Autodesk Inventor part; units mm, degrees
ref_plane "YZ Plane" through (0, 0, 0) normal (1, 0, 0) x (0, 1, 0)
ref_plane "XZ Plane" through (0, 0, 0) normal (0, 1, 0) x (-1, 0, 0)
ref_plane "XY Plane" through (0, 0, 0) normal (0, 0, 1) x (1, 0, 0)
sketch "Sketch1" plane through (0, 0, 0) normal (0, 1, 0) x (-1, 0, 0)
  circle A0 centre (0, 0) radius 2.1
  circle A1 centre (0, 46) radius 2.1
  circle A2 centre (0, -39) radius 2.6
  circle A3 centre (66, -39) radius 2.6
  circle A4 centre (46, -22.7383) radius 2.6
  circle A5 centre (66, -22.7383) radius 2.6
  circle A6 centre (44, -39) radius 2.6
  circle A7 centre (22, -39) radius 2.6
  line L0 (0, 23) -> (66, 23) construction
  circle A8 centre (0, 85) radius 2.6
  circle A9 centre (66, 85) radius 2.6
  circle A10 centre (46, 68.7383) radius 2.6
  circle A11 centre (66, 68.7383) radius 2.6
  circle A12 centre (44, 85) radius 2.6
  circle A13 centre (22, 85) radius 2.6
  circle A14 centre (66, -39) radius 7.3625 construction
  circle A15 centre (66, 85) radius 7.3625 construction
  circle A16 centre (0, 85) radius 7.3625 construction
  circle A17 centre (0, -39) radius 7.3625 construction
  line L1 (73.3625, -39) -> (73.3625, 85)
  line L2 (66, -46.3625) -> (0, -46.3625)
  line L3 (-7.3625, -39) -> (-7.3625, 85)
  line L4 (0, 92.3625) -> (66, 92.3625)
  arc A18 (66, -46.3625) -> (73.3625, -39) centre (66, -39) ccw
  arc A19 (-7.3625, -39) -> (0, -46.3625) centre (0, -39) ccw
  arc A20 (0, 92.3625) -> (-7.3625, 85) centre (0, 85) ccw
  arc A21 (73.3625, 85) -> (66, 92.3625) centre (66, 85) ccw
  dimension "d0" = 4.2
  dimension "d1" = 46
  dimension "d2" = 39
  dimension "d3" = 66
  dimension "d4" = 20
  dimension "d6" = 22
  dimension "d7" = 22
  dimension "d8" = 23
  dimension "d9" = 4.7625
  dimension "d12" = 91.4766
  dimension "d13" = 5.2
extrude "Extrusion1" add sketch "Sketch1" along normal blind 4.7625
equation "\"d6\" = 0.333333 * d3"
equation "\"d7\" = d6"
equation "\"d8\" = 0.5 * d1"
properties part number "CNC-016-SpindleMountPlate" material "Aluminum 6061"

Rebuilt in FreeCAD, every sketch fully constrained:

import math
import FreeCAD as App
import Part
import Sketcher
from FreeCAD import Vector

doc = App.newDocument("Part")
body = doc.addObject("PartDesign::Body", "Body")

sketch1 = body.newObject("Sketcher::SketchObject", "Sketch")
sketch1.AttachmentSupport = (doc.getObject("XZ_Plane"), [""])
sketch1.MapMode = "FlatFace"
sketch1.addGeometry([
    Part.ArcOfCircle(Part.Circle(Vector(-66, -39, 0), Vector(0, 0, 1), 7.4), math.radians(180), math.radians(270)),
    Part.LineSegment(Vector(-73.4, -39, 0), Vector(-73.4, 85, 0)),
    Part.ArcOfCircle(Part.Circle(Vector(-66, 85, 0), Vector(0, 0, 1), 7.4), math.radians(90), math.radians(180)),
    Part.LineSegment(Vector(-66, 92.4, 0), Vector(0, 92.4, 0)),
    Part.ArcOfCircle(Part.Circle(Vector(0, 85, 0), Vector(0, 0, 1), 7.4), math.radians(0), math.radians(90)),
    Part.LineSegment(Vector(7.4, 85, 0), Vector(7.4, -39, 0)),
    Part.ArcOfCircle(Part.Circle(Vector(0, -39, 0), Vector(0, 0, 1), 7.4), math.radians(-90), math.radians(0)),
    Part.LineSegment(Vector(0, -46.4, 0), Vector(-66, -46.4, 0)),
    Part.Circle(Vector(0, -39, 0), Vector(0, 0, 1), 2.6),
    Part.Circle(Vector(-22, -39, 0), Vector(0, 0, 1), 2.6),
    Part.Circle(Vector(0, 0, 0), Vector(0, 0, 1), 2.1),
    Part.Circle(Vector(-44, -39, 0), Vector(0, 0, 1), 2.6),
    Part.Circle(Vector(-46, -22.7, 0), Vector(0, 0, 1), 2.6),
    Part.Circle(Vector(-66, -39, 0), Vector(0, 0, 1), 2.6),
    Part.Circle(Vector(-66, -22.7, 0), Vector(0, 0, 1), 2.6),
    Part.Circle(Vector(0, 46, 0), Vector(0, 0, 1), 2.1),
    Part.Circle(Vector(0, 85, 0), Vector(0, 0, 1), 2.6),
    Part.Circle(Vector(-22, 85, 0), Vector(0, 0, 1), 2.6),
    Part.Circle(Vector(-46, 68.7, 0), Vector(0, 0, 1), 2.6),
    Part.Circle(Vector(-44, 85, 0), Vector(0, 0, 1), 2.6),
    Part.Circle(Vector(-66, 68.7, 0), Vector(0, 0, 1), 2.6),
    Part.Circle(Vector(-66, 85, 0), Vector(0, 0, 1), 2.6),
], False)
sketch1.addConstraint([
    Sketcher.Constraint("Tangent", 0, 1, 1, 1),
    Sketcher.Constraint("Tangent", 1, 2, 2, 2),
    Sketcher.Constraint("Tangent", 2, 1, 3, 1),
    Sketcher.Constraint("Tangent", 3, 2, 4, 2),
    Sketcher.Constraint("Tangent", 4, 1, 5, 1),
    Sketcher.Constraint("Tangent", 5, 2, 6, 2),
    Sketcher.Constraint("Tangent", 6, 1, 7, 1),
    Sketcher.Constraint("Tangent", 7, 2, 0, 2),
    Sketcher.Constraint("Vertical", 1),
    Sketcher.Constraint("Horizontal", 3),
    Sketcher.Constraint("Vertical", 5),
    Sketcher.Constraint("Horizontal", 7),
    Sketcher.Constraint("Coincident", 10, 3, -1, 1),
    Sketcher.Constraint("Coincident", 8, 3, 6, 3),
    Sketcher.Constraint("Coincident", 13, 3, 0, 3),
    Sketcher.Constraint("Coincident", 16, 3, 4, 3),
    Sketcher.Constraint("Coincident", 21, 3, 2, 3),
    Sketcher.Constraint("Equal", 0, 2),
    Sketcher.Constraint("Equal", 2, 4),
    Sketcher.Constraint("Equal", 4, 6),
    Sketcher.Constraint("Equal", 8, 9),
    Sketcher.Constraint("Equal", 9, 11),
    Sketcher.Constraint("Equal", 11, 12),
    Sketcher.Constraint("Equal", 12, 13),
    Sketcher.Constraint("Equal", 13, 14),
    Sketcher.Constraint("Equal", 10, 15),
    Sketcher.Constraint("Equal", 14, 16),
    Sketcher.Constraint("Equal", 16, 17),
    Sketcher.Constraint("Equal", 17, 18),
    Sketcher.Constraint("Equal", 18, 19),
    Sketcher.Constraint("Equal", 19, 20),
    Sketcher.Constraint("Equal", 20, 21),
    Sketcher.Constraint("PointOnObject", 4, 3, -2),
    Sketcher.Constraint("PointOnObject", 15, 3, -2),
    Sketcher.Constraint("Horizontal", 8, 3, 9, 3),
    Sketcher.Constraint("Horizontal", 9, 3, 11, 3),
    Sketcher.Constraint("Horizontal", 12, 3, 14, 3),
    Sketcher.Constraint("Horizontal", 16, 3, 17, 3),
    Sketcher.Constraint("Horizontal", 17, 3, 19, 3),
    Sketcher.Constraint("Horizontal", 18, 3, 20, 3),
    Sketcher.Constraint("Vertical", 13, 3, 14, 3),
    Sketcher.Constraint("Vertical", 9, 3, 17, 3),
    Sketcher.Constraint("Vertical", 12, 3, 18, 3),
    Sketcher.Constraint("Vertical", 11, 3, 19, 3),
    Sketcher.Constraint("Vertical", 14, 3, 20, 3),
    Sketcher.Constraint("Diameter", 8, 5.2),
    Sketcher.Constraint("Diameter", 10, 4.2),
    Sketcher.Constraint("DistanceX", 3, 1, 3, 2, 66.0),
    Sketcher.Constraint("DistanceY", 0, 3, -1, 1, 39.0),
    Sketcher.Constraint("DistanceX", 9, 3, -1, 1, 22.0),
    Sketcher.Constraint("DistanceX", 12, 3, -1, 1, 46.0),
    Sketcher.Constraint("DistanceY", -1, 1, 15, 3, 46.0),
    Sketcher.Constraint("DistanceX", 0, 3, 11, 3, 22.0),
    Sketcher.Constraint("DistanceY", 15, 3, 4, 3, 39.0),
    Sketcher.Constraint("Radius", 0, 7.3625),
    Sketcher.Constraint("DistanceY", 12, 3, -1, 1, 22.7383),
    Sketcher.Constraint("DistanceY", -1, 1, 18, 3, 68.7383),
])
pad1 = body.newObject("PartDesign::Pad", "Pad")
pad1.Profile = sketch1
pad1.Length = 4.7625
pad1.Reversed = True

doc.recompute()
